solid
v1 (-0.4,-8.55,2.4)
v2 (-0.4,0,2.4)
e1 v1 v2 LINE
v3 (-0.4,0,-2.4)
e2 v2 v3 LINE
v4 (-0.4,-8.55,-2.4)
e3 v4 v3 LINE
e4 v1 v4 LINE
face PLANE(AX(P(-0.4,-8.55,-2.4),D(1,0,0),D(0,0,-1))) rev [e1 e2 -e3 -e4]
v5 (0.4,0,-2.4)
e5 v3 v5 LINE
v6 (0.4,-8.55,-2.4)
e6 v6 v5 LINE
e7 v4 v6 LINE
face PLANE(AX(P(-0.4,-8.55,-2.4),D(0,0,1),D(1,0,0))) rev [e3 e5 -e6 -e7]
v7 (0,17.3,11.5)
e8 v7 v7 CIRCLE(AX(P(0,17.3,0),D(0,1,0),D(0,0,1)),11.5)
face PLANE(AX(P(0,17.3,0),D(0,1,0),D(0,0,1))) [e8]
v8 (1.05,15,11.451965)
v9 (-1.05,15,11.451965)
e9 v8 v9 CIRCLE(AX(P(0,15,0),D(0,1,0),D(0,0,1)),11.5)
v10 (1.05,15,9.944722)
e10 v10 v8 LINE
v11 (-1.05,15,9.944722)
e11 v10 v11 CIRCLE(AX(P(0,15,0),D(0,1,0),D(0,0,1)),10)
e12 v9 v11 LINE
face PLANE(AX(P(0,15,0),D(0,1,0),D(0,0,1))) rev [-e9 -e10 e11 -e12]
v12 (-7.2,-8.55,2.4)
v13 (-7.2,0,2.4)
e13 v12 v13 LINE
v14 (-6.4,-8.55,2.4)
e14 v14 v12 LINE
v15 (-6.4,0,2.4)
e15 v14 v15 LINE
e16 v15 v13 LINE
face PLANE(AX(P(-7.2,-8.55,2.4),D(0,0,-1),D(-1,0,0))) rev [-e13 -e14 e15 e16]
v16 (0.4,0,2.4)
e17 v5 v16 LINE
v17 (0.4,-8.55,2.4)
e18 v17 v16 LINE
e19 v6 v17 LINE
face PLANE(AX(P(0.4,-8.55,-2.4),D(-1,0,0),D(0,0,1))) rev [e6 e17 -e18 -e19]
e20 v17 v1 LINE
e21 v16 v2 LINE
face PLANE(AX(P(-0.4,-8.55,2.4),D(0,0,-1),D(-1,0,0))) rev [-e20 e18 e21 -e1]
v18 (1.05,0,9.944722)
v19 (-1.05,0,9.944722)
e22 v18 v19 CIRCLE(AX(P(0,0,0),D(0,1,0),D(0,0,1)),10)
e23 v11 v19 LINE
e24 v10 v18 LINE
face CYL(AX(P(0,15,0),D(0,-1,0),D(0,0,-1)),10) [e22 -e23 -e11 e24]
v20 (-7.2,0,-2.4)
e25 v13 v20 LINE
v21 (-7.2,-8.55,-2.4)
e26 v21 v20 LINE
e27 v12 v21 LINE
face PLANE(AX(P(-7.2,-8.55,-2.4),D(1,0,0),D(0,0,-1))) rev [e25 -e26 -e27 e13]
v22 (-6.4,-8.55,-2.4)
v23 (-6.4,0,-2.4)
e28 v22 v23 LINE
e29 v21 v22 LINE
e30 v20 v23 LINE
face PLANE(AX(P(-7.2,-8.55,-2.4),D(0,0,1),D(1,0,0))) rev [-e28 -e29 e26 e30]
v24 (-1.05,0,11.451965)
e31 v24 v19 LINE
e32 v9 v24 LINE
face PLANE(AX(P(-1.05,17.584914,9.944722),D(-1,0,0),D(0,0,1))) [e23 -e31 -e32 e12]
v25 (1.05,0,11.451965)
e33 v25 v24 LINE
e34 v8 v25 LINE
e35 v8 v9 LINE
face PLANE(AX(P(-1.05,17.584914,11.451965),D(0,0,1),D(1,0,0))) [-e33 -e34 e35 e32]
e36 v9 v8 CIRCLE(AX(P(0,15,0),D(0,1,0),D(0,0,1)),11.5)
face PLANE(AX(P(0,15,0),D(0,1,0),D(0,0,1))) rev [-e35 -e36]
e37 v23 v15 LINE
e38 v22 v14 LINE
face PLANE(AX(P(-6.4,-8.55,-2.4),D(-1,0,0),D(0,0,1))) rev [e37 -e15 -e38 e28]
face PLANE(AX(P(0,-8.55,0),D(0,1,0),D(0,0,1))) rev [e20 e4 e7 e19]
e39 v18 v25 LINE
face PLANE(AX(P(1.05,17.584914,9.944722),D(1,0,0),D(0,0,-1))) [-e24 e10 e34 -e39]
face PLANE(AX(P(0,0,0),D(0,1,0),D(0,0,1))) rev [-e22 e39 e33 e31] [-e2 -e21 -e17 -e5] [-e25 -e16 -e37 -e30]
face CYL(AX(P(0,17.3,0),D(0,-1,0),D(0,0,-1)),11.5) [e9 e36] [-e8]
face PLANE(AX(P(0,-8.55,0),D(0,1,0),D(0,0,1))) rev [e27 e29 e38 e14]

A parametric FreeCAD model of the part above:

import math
import FreeCAD as App
import Part
import Sketcher

V = App.Vector
Q = App.Units.Quantity

doc = App.newDocument("Part")
params = doc.addObject("Spreadsheet::Sheet", "Params")
for row, (alias, value) in enumerate([
    ("sketch1_diameter", "20 mm"),
    ("pad1_length", "15 mm"),
    ("sketch2_diameter", "23 mm"),
    ("pad2_length", "2.3 mm"),
    ("sketch3_width", "0.8 mm"),
    ("sketch3_height", "4.8 mm"),
    ("pad3_length", "8.55 mm"),
    ("sketch4_radius", "10 mm"),
    ("sketch4_width", "2.1 mm"),
    ("pad4_length", "15 mm"),
], start=1):
    params.set(f"A{row}", alias)
    params.set(f"B{row}", "=" + value)
    params.setAlias(f"B{row}", alias)

body = doc.addObject("PartDesign::Body", "Body")

sketch1 = doc.addObject("Sketcher::SketchObject", "Sketch")
body.addObject(sketch1)
sketch1.AttachmentSupport = (doc.XZ_Plane, [""])
sketch1.MapMode = "FlatFace"
sketch1.addGeometry(Part.Circle(V(0, 0, 0), V(0, 0, 1), 10), False)
sketch1.addConstraint([
    Sketcher.Constraint("Coincident", 0, 3, -1, 1),
    Sketcher.Constraint("Diameter", 0, Q("20 mm")),
])
sketch1.setExpression("Constraints[1]", "Params.sketch1_diameter")
pad1 = doc.addObject("PartDesign::Pad", "Pad")
body.addObject(pad1)
pad1.Profile = sketch1
pad1.setExpression("Length", "Params.pad1_length")
pad1.Reversed = True

sketch2 = doc.addObject("Sketcher::SketchObject", "Sketch001")
body.addObject(sketch2)
sketch2.AttachmentSupport = (doc.XZ_Plane, [""])
sketch2.MapMode = "FlatFace"
sketch2.AttachmentOffset = App.Placement(V(0, 0, -15), App.Rotation())
sketch2.addGeometry(Part.Circle(V(0, 0, 0), V(0, 0, 1), 12), False)
sketch2.addConstraint([
    Sketcher.Constraint("Coincident", 0, 3, -1, 1),
    Sketcher.Constraint("Diameter", 0, Q("23 mm")),
])
sketch2.setExpression("Constraints[1]", "Params.sketch2_diameter")
pad2 = doc.addObject("PartDesign::Pad", "Pad001")
body.addObject(pad2)
pad2.Profile = sketch2
pad2.setExpression("Length", "Params.pad2_length")
pad2.Reversed = True

sketch3 = doc.addObject("Sketcher::SketchObject", "Sketch002")
body.addObject(sketch3)
sketch3.AttachmentSupport = (doc.XZ_Plane, [""])
sketch3.MapMode = "FlatFace"
sketch3.addGeometry([
    Part.LineSegment(V(-0.4, 2.4, 0), V(-0.4, -2.4, 0)),
    Part.LineSegment(V(-0.4, -2.4, 0), V(0.4, -2.4, 0)),
    Part.LineSegment(V(0.4, -2.4, 0), V(0.4, 2.4, 0)),
    Part.LineSegment(V(0.4, 2.4, 0), V(-0.4, 2.4, 0)),
    Part.LineSegment(V(-7.2, 2.4, 0), V(-7.2, -2.4, 0)),
    Part.LineSegment(V(-7.2, -2.4, 0), V(-6.4, -2.4, 0)),
    Part.LineSegment(V(-6.4, -2.4, 0), V(-6.4, 2.4, 0)),
    Part.LineSegment(V(-6.4, 2.4, 0), V(-7.2, 2.4, 0)),
], False)
sketch3.addConstraint([
    Sketcher.Constraint("Coincident", 0, 2, 1, 1),
    Sketcher.Constraint("Coincident", 1, 2, 2, 1),
    Sketcher.Constraint("Coincident", 2, 2, 3, 1),
    Sketcher.Constraint("Coincident", 3, 2, 0, 1),
    Sketcher.Constraint("Coincident", 4, 2, 5, 1),
    Sketcher.Constraint("Coincident", 5, 2, 6, 1),
    Sketcher.Constraint("Coincident", 6, 2, 7, 1),
    Sketcher.Constraint("Coincident", 7, 2, 4, 1),
    Sketcher.Constraint("Vertical", 0),
    Sketcher.Constraint("Horizontal", 1),
    Sketcher.Constraint("Vertical", 2),
    Sketcher.Constraint("Horizontal", 3),
    Sketcher.Constraint("Vertical", 4),
    Sketcher.Constraint("Horizontal", 5),
    Sketcher.Constraint("Vertical", 6),
    Sketcher.Constraint("Horizontal", 7),
    Sketcher.Constraint("Symmetric", 0, 2, 2, 2, -1, 1),
    Sketcher.Constraint("Horizontal", 1, 2, 4, 2),
    Sketcher.Constraint("Horizontal", 3, 2, 6, 2),
    Sketcher.Constraint("Equal", 3, 5),
    Sketcher.Constraint("DistanceX", 1, 1, 1, 2, Q("0.8 mm")),
    Sketcher.Constraint("DistanceY", 0, 2, 0, 1, Q("4.8 mm")),
    Sketcher.Constraint("DistanceX", 5, 2, 0, 2, Q("6 mm")),
])
sketch3.setExpression("Constraints[20]", "Params.sketch3_width")
sketch3.setExpression("Constraints[21]", "Params.sketch3_height")
pad3 = doc.addObject("PartDesign::Pad", "Pad002")
body.addObject(pad3)
pad3.Profile = sketch3
pad3.setExpression("Length", "Params.pad3_length")

sketch4 = doc.addObject("Sketcher::SketchObject", "Sketch003")
body.addObject(sketch4)
sketch4.AttachmentSupport = (doc.XZ_Plane, [""])
sketch4.MapMode = "FlatFace"
sketch4.addGeometry([
    Part.LineSegment(V(-1.1, 11.5, 0), V(-1.1, 9.9, 0)),
    Part.ArcOfCircle(Part.Circle(V(0, 0, 0), V(0, 0, 1), 10), math.radians(83.97), math.radians(96.03)),
    Part.LineSegment(V(1.1, 9.9, 0), V(1.1, 11.5, 0)),
    Part.LineSegment(V(1.1, 11.5, 0), V(-1.1, 11.5, 0)),
], False)
sketch4.addConstraint([
    Sketcher.Constraint("Coincident", 0, 2, 1, 2),
    Sketcher.Constraint("Coincident", 1, 1, 2, 1),
    Sketcher.Constraint("Coincident", 2, 2, 3, 1),
    Sketcher.Constraint("Coincident", 3, 2, 0, 1),
    Sketcher.Constraint("Vertical", 0),
    Sketcher.Constraint("Vertical", 2),
    Sketcher.Constraint("Horizontal", 3),
    Sketcher.Constraint("Coincident", 1, 3, -1, 1),
    Sketcher.Constraint("Horizontal", 0, 2, 1, 1),
    Sketcher.Constraint("Radius", 1, Q("10 mm")),
    Sketcher.Constraint("DistanceX", 3, 2, 3, 1, Q("2.1 mm")),
    Sketcher.Constraint("DistanceY", 0, 2, 0, 1, Q("1.507243 mm")),
])
sketch4.setExpression("Constraints[9]", "Params.sketch4_radius")
sketch4.setExpression("Constraints[10]", "Params.sketch4_width")
pad4 = doc.addObject("PartDesign::Pad", "Pad003")
body.addObject(pad4)
pad4.Profile = sketch4
pad4.setExpression("Length", "Params.pad4_length")
pad4.Reversed = True

doc.recompute()
